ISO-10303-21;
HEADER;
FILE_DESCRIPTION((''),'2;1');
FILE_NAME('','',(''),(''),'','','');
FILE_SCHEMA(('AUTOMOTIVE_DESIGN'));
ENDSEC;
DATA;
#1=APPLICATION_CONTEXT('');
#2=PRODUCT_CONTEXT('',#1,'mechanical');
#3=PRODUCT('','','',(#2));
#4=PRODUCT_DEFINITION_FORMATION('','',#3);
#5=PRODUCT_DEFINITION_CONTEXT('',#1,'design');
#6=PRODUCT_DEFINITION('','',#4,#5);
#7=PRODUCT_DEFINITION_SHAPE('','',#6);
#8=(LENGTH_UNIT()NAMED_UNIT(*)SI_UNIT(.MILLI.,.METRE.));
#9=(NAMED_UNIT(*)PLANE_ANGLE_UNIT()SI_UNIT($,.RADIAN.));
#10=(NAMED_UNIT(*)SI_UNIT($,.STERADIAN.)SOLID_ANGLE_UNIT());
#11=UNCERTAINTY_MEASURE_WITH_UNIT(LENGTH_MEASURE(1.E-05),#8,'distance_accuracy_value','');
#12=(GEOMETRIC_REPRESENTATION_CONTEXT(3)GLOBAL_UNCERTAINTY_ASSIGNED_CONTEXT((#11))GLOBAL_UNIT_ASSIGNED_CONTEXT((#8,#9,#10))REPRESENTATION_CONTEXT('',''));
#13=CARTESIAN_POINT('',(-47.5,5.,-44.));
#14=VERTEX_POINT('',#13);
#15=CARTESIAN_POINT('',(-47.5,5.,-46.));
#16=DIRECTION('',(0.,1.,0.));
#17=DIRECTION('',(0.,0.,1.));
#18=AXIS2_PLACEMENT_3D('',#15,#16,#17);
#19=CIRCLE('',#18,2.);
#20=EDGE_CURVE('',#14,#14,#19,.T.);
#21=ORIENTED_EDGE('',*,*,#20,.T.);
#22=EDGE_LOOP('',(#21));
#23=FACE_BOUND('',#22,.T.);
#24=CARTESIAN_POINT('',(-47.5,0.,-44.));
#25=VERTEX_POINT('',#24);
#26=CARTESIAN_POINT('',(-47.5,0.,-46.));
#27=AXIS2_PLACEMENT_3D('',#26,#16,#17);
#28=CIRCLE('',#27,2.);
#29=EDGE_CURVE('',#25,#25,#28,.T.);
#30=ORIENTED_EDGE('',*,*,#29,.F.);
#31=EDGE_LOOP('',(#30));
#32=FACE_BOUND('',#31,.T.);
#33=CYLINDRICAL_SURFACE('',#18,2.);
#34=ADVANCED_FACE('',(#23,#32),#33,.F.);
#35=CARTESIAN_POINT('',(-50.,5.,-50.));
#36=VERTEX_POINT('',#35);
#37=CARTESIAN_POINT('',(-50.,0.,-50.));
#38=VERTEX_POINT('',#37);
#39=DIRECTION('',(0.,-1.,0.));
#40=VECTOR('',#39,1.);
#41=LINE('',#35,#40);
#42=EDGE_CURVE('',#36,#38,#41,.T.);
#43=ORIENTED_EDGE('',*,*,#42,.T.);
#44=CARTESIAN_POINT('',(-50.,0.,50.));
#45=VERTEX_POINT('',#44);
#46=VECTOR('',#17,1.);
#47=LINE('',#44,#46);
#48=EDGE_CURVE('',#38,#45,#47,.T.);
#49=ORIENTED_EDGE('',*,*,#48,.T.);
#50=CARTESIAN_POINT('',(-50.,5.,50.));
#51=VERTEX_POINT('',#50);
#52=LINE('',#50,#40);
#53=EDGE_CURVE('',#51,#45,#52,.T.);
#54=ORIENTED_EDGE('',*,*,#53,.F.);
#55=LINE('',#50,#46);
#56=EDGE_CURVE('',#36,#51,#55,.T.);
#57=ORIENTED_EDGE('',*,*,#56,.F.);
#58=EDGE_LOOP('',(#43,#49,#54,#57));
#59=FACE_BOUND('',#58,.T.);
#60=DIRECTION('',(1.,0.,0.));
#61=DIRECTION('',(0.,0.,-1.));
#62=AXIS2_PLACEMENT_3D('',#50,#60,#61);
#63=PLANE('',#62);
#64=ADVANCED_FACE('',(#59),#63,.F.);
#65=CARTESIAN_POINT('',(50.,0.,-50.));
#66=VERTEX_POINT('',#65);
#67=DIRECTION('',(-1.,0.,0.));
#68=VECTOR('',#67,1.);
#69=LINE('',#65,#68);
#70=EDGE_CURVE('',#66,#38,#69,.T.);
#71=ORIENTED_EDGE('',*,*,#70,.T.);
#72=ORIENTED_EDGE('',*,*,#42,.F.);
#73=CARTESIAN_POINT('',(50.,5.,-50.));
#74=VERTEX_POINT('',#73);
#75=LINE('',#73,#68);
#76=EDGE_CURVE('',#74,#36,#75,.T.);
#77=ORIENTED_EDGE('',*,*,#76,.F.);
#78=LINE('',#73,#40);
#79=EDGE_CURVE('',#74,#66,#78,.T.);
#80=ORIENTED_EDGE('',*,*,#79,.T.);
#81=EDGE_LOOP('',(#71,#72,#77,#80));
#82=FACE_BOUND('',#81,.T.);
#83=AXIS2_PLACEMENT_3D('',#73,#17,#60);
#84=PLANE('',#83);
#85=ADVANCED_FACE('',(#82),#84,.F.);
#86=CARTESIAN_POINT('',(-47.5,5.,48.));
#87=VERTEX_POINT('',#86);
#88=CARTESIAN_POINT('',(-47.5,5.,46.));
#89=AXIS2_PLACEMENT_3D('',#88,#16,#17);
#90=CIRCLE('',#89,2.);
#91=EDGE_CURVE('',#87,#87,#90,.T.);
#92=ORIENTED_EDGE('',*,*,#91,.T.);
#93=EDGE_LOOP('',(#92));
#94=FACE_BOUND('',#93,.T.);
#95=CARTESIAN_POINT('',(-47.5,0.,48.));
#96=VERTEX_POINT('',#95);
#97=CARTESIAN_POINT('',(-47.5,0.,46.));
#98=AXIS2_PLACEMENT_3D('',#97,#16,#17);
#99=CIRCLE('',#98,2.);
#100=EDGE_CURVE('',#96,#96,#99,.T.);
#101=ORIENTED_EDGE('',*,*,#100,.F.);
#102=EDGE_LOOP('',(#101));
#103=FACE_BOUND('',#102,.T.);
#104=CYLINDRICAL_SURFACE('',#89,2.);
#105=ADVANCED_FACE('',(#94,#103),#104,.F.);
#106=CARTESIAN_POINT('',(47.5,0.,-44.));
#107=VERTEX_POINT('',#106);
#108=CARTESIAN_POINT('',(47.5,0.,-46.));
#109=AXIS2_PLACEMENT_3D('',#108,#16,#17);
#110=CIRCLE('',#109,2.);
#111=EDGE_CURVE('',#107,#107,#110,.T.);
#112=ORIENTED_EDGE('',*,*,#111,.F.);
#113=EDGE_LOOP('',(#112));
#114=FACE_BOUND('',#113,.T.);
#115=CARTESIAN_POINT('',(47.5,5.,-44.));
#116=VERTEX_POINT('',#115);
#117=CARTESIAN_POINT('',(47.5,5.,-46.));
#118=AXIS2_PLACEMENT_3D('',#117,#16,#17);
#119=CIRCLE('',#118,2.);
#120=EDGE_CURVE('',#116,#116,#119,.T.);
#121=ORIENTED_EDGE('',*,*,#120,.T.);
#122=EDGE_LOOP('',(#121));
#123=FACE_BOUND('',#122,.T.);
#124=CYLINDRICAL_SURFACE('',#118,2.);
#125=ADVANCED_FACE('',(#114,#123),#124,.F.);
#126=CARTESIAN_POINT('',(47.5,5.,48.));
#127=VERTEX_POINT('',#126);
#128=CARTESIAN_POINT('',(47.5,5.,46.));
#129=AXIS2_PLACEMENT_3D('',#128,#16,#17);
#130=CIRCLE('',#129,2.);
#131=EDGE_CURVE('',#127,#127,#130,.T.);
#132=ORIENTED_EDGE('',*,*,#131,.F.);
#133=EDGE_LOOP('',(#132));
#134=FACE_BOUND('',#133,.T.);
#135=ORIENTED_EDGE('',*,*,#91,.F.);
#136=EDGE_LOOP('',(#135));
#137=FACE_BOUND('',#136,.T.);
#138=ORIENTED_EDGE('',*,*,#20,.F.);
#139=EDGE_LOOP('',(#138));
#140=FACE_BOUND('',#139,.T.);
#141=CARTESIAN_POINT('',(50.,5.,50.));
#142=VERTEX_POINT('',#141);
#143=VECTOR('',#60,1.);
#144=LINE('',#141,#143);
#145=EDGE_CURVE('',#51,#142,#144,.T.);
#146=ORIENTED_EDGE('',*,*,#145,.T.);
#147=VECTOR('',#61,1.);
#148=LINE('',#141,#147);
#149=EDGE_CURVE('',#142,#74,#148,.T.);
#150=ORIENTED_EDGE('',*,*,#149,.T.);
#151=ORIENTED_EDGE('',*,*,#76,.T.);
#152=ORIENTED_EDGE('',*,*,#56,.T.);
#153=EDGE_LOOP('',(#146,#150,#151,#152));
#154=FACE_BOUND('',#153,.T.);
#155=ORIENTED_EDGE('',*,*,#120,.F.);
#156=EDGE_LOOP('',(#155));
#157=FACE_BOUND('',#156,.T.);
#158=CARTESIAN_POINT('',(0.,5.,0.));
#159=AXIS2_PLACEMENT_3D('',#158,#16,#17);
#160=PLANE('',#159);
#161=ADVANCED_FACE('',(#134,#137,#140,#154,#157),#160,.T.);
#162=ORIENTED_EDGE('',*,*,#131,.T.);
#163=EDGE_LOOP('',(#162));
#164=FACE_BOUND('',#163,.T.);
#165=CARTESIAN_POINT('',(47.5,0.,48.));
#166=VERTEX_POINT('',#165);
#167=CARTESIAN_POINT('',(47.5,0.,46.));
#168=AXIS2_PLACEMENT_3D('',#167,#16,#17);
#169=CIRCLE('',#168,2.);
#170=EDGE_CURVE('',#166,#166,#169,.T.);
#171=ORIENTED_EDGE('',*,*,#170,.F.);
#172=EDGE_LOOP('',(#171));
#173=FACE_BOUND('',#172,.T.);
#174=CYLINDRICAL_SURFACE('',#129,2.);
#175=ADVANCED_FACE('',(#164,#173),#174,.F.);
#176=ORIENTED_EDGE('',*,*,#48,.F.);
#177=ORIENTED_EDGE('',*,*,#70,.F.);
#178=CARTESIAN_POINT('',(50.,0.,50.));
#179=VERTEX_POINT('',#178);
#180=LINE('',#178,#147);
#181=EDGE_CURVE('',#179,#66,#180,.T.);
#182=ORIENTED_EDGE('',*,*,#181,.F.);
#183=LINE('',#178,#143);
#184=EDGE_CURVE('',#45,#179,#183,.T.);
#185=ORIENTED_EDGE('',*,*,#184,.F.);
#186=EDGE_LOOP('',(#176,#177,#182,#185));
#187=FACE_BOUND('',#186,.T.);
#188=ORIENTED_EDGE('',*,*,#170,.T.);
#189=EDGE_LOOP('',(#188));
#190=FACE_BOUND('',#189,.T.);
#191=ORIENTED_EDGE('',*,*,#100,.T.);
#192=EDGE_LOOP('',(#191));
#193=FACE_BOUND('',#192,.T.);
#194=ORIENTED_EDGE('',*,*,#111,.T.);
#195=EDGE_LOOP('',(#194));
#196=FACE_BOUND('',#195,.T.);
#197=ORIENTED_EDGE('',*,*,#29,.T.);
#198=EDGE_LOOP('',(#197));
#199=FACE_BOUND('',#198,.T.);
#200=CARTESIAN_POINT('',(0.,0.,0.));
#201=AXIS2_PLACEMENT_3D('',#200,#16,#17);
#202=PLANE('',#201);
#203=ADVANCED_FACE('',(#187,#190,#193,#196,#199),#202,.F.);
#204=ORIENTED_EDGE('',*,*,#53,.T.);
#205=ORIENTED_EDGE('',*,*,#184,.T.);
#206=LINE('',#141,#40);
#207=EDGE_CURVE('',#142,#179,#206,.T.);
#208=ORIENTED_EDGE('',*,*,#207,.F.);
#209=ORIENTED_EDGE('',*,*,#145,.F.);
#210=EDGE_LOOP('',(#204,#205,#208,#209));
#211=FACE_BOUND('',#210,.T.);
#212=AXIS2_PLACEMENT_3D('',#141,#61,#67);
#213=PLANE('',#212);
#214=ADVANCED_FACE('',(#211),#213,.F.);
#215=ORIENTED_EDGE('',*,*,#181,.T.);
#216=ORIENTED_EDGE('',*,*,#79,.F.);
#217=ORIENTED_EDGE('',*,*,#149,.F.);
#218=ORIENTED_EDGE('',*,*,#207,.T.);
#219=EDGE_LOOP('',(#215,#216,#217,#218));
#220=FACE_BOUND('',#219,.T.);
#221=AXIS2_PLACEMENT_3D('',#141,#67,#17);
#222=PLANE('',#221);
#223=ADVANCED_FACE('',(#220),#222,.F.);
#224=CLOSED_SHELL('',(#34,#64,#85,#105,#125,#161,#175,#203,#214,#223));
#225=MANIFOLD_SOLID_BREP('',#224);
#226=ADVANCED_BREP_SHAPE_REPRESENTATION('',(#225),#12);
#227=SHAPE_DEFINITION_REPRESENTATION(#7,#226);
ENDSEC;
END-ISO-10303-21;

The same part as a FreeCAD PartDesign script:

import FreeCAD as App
import Part
import Sketcher

V = App.Vector


def add_polygon(sketch, points):
    """Adds a closed chain of lines whose ends are joined by coincident constraints."""
    first, n = sketch.GeometryCount, len(points)
    for a, b in zip(points, points[1:] + points[:1]):
        sketch.addGeometry(Part.LineSegment(App.Vector(*a, 0), App.Vector(*b, 0)), False)
    for i in range(n):
        sketch.addConstraint(Sketcher.Constraint("Coincident", first + i, 2, first + (i + 1) % n, 1))

doc = App.newDocument("Part")
body = doc.addObject("PartDesign::Body", "Body")

# Sketch on XZ plane
sketch1 = doc.addObject("Sketcher::SketchObject", "Sketch")
body.addObject(sketch1)
sketch1.AttachmentSupport = (doc.XZ_Plane, [""])
sketch1.MapMode = "FlatFace"
add_polygon(sketch1, [(-50, -50), (-50, 50), (50, 50), (50, -50)])  # lines 0-3
sketch1.addConstraint(Sketcher.Constraint("Vertical", 0))
sketch1.addConstraint(Sketcher.Constraint("Horizontal", 1))
sketch1.addConstraint(Sketcher.Constraint("Vertical", 2))
sketch1.addConstraint(Sketcher.Constraint("Horizontal", 3))
sketch1.addConstraint(Sketcher.Constraint("Symmetric", 0, 2, 2, 2, -1, 1))
sketch1.addConstraint(Sketcher.Constraint("Equal", 3, 0))
sketch1.addConstraint(Sketcher.Constraint("DistanceX", 1, 1, 1, 2, 100.0))
pad1 = doc.addObject("PartDesign::Pad", "Pad")
body.addObject(pad1)
pad1.Profile = sketch1
pad1.Length = 5
pad1.Reversed = True

# Sketch on XZ plane
sketch2 = doc.addObject("Sketcher::SketchObject", "Sketch001")
body.addObject(sketch2)
sketch2.AttachmentSupport = (doc.XZ_Plane, [""])
sketch2.MapMode = "FlatFace"
sketch2.AttachmentOffset = App.Placement(V(0, 0, -5), App.Rotation())
sketch2.addGeometry(Part.Circle(V(-47.5, -46, 0), V(0, 0, 1), 2), False)
sketch2.addGeometry(Part.Circle(V(47.5, -46, 0), V(0, 0, 1), 2), False)
sketch2.addGeometry(Part.Circle(V(47.5, 46, 0), V(0, 0, 1), 2), False)
sketch2.addGeometry(Part.Circle(V(-47.5, 46, 0), V(0, 0, 1), 2), False)
sketch2.addConstraint(Sketcher.Constraint("Equal", 0, 1))
sketch2.addConstraint(Sketcher.Constraint("Equal", 1, 2))
sketch2.addConstraint(Sketcher.Constraint("Equal", 2, 3))
sketch2.addConstraint(Sketcher.Constraint("Symmetric", 0, 3, 2, 3, -1, 1))
sketch2.addConstraint(Sketcher.Constraint("Symmetric", 1, 3, 3, 3, -1, 1))
sketch2.addConstraint(Sketcher.Constraint("Symmetric", 0, 3, 1, 3, -2))
sketch2.addConstraint(Sketcher.Constraint("Diameter", 0, 4.0))
sketch2.addConstraint(Sketcher.Constraint("DistanceY", 0, 3, -1, 1, 46.0))
sketch2.addConstraint(Sketcher.Constraint("DistanceX", 0, 3, 1, 3, 95.0))
doc.recompute()
hole = doc.addObject("PartDesign::Hole", "Hole")
body.addObject(hole)
hole.Profile = sketch2
hole.ThreadType = "None"
hole.Diameter = 4
hole.DepthType = "Dimension"
hole.Depth = 5
hole.DrillPoint = "Flat"
hole.Reversed = True

doc.recompute()
